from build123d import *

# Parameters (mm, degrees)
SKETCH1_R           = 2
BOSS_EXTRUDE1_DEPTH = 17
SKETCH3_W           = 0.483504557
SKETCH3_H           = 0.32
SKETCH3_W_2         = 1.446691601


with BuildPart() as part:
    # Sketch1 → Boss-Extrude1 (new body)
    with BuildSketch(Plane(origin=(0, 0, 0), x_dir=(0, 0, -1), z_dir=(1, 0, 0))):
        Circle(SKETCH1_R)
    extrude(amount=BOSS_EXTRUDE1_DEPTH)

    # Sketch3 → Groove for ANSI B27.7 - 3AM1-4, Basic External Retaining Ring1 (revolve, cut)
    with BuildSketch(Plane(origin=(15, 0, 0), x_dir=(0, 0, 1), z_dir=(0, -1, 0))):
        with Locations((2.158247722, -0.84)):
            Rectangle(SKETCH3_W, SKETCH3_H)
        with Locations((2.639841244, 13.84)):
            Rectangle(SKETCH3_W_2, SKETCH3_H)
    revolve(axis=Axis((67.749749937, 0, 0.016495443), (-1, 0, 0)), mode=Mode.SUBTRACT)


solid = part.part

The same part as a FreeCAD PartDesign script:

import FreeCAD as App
import Part
import Sketcher
from FreeCAD import Vector

doc = App.newDocument("Part")
params = doc.addObject("Spreadsheet::Sheet", "Params")
for row, (alias, value) in enumerate([
    ("sketch1_diameter", "4 mm"),
    ("pad1_length", "17 mm"),
    ("sketch2_width", "15 mm"),
    ("sketch2_width2", "0.32 mm"),
    ("groove_angle", "360 deg"),
], start=1):
    params.set(f"A{row}", alias)
    params.set(f"B{row}", "=" + value)
    params.setAlias(f"B{row}", alias)

body = doc.addObject("PartDesign::Body", "Body")

# Sketch on YZ plane
sketch1 = body.newObject("Sketcher::SketchObject", "Sketch")
sketch1.AttachmentSupport = (doc.getObject("YZ_Plane"), [""])
sketch1.MapMode = "FlatFace"
sketch1.addGeometry(Part.Circle(Vector(0, 0, 0), Vector(0, 0, 1), 2), False)
sketch1.addConstraint(Sketcher.Constraint("Coincident", 0, 3, -1, 1))
sketch1.addConstraint(Sketcher.Constraint("Diameter", 0, 4.0))
sketch1.setExpression("Constraints[1]", "Params.sketch1_diameter")
pad1 = body.newObject("PartDesign::Pad", "Pad")
pad1.Profile = sketch1
pad1.setExpression("Length", "Params.pad1_length")

# Sketch on XZ plane
sketch2 = body.newObject("Sketcher::SketchObject", "Sketch001")
sketch2.AttachmentSupport = (doc.getObject("XZ_Plane"), [""])
sketch2.MapMode = "FlatFace"
sketch2.addGeometry(Part.LineSegment(Vector(15.68, 1.916495, 0), Vector(16, 1.916495, 0)), False)
sketch2.addGeometry(Part.LineSegment(Vector(16, 1.916495, 0), Vector(16, 2.4, 0)), False)
sketch2.addGeometry(Part.LineSegment(Vector(16, 2.4, 0), Vector(15.68, 2.4, 0)), False)
sketch2.addGeometry(Part.LineSegment(Vector(15.68, 2.4, 0), Vector(15.68, 1.916495, 0)), False)
sketch2.addGeometry(Part.LineSegment(Vector(1, 1.916495, 0), Vector(1.32, 1.916495, 0)), False)
sketch2.addGeometry(Part.LineSegment(Vector(1.32, 1.916495, 0), Vector(1.32, 3.363187, 0)), False)
sketch2.addGeometry(Part.LineSegment(Vector(1.32, 3.363187, 0), Vector(1, 3.363187, 0)), False)
sketch2.addGeometry(Part.LineSegment(Vector(1, 3.363187, 0), Vector(1, 1.916495, 0)), False)
sketch2.addGeometry(Part.LineSegment(Vector(16, 0.016495, 0), Vector(1, 0.016495, 0)), True)  # axis
sketch2.addConstraint(Sketcher.Constraint("Coincident", 0, 2, 1, 1))
sketch2.addConstraint(Sketcher.Constraint("Coincident", 1, 2, 2, 1))
sketch2.addConstraint(Sketcher.Constraint("Coincident", 2, 2, 3, 1))
sketch2.addConstraint(Sketcher.Constraint("Coincident", 3, 2, 0, 1))
sketch2.addConstraint(Sketcher.Constraint("Coincident", 4, 2, 5, 1))
sketch2.addConstraint(Sketcher.Constraint("Coincident", 5, 2, 6, 1))
sketch2.addConstraint(Sketcher.Constraint("Coincident", 6, 2, 7, 1))
sketch2.addConstraint(Sketcher.Constraint("Coincident", 7, 2, 4, 1))
sketch2.addConstraint(Sketcher.Constraint("Horizontal", 0))
sketch2.addConstraint(Sketcher.Constraint("Vertical", 1))
sketch2.addConstraint(Sketcher.Constraint("Horizontal", 2))
sketch2.addConstraint(Sketcher.Constraint("Vertical", 3))
sketch2.addConstraint(Sketcher.Constraint("Horizontal", 4))
sketch2.addConstraint(Sketcher.Constraint("Vertical", 5))
sketch2.addConstraint(Sketcher.Constraint("Horizontal", 6))
sketch2.addConstraint(Sketcher.Constraint("Vertical", 7))
sketch2.addConstraint(Sketcher.Constraint("Horizontal", 8))
sketch2.addConstraint(Sketcher.Constraint("Horizontal", 3, 2, 4, 2))
sketch2.addConstraint(Sketcher.Constraint("Vertical", 1, 2, 8, 1))
sketch2.addConstraint(Sketcher.Constraint("Vertical", 7, 2, 8, 2))
sketch2.addConstraint(Sketcher.Constraint("Equal", 2, 4))
sketch2.addConstraint(Sketcher.Constraint("DistanceX", 8, 2, 8, 1, 15.0))
sketch2.addConstraint(Sketcher.Constraint("DistanceX", -1, 1, 0, 2, 16.0))
sketch2.addConstraint(Sketcher.Constraint("DistanceX", 0, 1, 0, 2, 0.32))
sketch2.addConstraint(Sketcher.Constraint("DistanceY", -1, 1, 1, 2, 2.4))
sketch2.addConstraint(Sketcher.Constraint("DistanceY", 8, 1, 0, 2, 1.9))
sketch2.addConstraint(Sketcher.Constraint("DistanceY", 5, 1, 5, 2, 1.446692))
sketch2.addConstraint(Sketcher.Constraint("DistanceY", 1, 1, 1, 2, 0.483505))
sketch2.setExpression("Constraints[21]", "Params.sketch2_width")
sketch2.setExpression("Constraints[23]", "Params.sketch2_width2")
groove = body.newObject("PartDesign::Groove", "Groove")
groove.Profile = sketch2
groove.ReferenceAxis = (sketch2, ["Axis0"])
groove.setExpression("Angle", "Params.groove_angle")

doc.recompute()
